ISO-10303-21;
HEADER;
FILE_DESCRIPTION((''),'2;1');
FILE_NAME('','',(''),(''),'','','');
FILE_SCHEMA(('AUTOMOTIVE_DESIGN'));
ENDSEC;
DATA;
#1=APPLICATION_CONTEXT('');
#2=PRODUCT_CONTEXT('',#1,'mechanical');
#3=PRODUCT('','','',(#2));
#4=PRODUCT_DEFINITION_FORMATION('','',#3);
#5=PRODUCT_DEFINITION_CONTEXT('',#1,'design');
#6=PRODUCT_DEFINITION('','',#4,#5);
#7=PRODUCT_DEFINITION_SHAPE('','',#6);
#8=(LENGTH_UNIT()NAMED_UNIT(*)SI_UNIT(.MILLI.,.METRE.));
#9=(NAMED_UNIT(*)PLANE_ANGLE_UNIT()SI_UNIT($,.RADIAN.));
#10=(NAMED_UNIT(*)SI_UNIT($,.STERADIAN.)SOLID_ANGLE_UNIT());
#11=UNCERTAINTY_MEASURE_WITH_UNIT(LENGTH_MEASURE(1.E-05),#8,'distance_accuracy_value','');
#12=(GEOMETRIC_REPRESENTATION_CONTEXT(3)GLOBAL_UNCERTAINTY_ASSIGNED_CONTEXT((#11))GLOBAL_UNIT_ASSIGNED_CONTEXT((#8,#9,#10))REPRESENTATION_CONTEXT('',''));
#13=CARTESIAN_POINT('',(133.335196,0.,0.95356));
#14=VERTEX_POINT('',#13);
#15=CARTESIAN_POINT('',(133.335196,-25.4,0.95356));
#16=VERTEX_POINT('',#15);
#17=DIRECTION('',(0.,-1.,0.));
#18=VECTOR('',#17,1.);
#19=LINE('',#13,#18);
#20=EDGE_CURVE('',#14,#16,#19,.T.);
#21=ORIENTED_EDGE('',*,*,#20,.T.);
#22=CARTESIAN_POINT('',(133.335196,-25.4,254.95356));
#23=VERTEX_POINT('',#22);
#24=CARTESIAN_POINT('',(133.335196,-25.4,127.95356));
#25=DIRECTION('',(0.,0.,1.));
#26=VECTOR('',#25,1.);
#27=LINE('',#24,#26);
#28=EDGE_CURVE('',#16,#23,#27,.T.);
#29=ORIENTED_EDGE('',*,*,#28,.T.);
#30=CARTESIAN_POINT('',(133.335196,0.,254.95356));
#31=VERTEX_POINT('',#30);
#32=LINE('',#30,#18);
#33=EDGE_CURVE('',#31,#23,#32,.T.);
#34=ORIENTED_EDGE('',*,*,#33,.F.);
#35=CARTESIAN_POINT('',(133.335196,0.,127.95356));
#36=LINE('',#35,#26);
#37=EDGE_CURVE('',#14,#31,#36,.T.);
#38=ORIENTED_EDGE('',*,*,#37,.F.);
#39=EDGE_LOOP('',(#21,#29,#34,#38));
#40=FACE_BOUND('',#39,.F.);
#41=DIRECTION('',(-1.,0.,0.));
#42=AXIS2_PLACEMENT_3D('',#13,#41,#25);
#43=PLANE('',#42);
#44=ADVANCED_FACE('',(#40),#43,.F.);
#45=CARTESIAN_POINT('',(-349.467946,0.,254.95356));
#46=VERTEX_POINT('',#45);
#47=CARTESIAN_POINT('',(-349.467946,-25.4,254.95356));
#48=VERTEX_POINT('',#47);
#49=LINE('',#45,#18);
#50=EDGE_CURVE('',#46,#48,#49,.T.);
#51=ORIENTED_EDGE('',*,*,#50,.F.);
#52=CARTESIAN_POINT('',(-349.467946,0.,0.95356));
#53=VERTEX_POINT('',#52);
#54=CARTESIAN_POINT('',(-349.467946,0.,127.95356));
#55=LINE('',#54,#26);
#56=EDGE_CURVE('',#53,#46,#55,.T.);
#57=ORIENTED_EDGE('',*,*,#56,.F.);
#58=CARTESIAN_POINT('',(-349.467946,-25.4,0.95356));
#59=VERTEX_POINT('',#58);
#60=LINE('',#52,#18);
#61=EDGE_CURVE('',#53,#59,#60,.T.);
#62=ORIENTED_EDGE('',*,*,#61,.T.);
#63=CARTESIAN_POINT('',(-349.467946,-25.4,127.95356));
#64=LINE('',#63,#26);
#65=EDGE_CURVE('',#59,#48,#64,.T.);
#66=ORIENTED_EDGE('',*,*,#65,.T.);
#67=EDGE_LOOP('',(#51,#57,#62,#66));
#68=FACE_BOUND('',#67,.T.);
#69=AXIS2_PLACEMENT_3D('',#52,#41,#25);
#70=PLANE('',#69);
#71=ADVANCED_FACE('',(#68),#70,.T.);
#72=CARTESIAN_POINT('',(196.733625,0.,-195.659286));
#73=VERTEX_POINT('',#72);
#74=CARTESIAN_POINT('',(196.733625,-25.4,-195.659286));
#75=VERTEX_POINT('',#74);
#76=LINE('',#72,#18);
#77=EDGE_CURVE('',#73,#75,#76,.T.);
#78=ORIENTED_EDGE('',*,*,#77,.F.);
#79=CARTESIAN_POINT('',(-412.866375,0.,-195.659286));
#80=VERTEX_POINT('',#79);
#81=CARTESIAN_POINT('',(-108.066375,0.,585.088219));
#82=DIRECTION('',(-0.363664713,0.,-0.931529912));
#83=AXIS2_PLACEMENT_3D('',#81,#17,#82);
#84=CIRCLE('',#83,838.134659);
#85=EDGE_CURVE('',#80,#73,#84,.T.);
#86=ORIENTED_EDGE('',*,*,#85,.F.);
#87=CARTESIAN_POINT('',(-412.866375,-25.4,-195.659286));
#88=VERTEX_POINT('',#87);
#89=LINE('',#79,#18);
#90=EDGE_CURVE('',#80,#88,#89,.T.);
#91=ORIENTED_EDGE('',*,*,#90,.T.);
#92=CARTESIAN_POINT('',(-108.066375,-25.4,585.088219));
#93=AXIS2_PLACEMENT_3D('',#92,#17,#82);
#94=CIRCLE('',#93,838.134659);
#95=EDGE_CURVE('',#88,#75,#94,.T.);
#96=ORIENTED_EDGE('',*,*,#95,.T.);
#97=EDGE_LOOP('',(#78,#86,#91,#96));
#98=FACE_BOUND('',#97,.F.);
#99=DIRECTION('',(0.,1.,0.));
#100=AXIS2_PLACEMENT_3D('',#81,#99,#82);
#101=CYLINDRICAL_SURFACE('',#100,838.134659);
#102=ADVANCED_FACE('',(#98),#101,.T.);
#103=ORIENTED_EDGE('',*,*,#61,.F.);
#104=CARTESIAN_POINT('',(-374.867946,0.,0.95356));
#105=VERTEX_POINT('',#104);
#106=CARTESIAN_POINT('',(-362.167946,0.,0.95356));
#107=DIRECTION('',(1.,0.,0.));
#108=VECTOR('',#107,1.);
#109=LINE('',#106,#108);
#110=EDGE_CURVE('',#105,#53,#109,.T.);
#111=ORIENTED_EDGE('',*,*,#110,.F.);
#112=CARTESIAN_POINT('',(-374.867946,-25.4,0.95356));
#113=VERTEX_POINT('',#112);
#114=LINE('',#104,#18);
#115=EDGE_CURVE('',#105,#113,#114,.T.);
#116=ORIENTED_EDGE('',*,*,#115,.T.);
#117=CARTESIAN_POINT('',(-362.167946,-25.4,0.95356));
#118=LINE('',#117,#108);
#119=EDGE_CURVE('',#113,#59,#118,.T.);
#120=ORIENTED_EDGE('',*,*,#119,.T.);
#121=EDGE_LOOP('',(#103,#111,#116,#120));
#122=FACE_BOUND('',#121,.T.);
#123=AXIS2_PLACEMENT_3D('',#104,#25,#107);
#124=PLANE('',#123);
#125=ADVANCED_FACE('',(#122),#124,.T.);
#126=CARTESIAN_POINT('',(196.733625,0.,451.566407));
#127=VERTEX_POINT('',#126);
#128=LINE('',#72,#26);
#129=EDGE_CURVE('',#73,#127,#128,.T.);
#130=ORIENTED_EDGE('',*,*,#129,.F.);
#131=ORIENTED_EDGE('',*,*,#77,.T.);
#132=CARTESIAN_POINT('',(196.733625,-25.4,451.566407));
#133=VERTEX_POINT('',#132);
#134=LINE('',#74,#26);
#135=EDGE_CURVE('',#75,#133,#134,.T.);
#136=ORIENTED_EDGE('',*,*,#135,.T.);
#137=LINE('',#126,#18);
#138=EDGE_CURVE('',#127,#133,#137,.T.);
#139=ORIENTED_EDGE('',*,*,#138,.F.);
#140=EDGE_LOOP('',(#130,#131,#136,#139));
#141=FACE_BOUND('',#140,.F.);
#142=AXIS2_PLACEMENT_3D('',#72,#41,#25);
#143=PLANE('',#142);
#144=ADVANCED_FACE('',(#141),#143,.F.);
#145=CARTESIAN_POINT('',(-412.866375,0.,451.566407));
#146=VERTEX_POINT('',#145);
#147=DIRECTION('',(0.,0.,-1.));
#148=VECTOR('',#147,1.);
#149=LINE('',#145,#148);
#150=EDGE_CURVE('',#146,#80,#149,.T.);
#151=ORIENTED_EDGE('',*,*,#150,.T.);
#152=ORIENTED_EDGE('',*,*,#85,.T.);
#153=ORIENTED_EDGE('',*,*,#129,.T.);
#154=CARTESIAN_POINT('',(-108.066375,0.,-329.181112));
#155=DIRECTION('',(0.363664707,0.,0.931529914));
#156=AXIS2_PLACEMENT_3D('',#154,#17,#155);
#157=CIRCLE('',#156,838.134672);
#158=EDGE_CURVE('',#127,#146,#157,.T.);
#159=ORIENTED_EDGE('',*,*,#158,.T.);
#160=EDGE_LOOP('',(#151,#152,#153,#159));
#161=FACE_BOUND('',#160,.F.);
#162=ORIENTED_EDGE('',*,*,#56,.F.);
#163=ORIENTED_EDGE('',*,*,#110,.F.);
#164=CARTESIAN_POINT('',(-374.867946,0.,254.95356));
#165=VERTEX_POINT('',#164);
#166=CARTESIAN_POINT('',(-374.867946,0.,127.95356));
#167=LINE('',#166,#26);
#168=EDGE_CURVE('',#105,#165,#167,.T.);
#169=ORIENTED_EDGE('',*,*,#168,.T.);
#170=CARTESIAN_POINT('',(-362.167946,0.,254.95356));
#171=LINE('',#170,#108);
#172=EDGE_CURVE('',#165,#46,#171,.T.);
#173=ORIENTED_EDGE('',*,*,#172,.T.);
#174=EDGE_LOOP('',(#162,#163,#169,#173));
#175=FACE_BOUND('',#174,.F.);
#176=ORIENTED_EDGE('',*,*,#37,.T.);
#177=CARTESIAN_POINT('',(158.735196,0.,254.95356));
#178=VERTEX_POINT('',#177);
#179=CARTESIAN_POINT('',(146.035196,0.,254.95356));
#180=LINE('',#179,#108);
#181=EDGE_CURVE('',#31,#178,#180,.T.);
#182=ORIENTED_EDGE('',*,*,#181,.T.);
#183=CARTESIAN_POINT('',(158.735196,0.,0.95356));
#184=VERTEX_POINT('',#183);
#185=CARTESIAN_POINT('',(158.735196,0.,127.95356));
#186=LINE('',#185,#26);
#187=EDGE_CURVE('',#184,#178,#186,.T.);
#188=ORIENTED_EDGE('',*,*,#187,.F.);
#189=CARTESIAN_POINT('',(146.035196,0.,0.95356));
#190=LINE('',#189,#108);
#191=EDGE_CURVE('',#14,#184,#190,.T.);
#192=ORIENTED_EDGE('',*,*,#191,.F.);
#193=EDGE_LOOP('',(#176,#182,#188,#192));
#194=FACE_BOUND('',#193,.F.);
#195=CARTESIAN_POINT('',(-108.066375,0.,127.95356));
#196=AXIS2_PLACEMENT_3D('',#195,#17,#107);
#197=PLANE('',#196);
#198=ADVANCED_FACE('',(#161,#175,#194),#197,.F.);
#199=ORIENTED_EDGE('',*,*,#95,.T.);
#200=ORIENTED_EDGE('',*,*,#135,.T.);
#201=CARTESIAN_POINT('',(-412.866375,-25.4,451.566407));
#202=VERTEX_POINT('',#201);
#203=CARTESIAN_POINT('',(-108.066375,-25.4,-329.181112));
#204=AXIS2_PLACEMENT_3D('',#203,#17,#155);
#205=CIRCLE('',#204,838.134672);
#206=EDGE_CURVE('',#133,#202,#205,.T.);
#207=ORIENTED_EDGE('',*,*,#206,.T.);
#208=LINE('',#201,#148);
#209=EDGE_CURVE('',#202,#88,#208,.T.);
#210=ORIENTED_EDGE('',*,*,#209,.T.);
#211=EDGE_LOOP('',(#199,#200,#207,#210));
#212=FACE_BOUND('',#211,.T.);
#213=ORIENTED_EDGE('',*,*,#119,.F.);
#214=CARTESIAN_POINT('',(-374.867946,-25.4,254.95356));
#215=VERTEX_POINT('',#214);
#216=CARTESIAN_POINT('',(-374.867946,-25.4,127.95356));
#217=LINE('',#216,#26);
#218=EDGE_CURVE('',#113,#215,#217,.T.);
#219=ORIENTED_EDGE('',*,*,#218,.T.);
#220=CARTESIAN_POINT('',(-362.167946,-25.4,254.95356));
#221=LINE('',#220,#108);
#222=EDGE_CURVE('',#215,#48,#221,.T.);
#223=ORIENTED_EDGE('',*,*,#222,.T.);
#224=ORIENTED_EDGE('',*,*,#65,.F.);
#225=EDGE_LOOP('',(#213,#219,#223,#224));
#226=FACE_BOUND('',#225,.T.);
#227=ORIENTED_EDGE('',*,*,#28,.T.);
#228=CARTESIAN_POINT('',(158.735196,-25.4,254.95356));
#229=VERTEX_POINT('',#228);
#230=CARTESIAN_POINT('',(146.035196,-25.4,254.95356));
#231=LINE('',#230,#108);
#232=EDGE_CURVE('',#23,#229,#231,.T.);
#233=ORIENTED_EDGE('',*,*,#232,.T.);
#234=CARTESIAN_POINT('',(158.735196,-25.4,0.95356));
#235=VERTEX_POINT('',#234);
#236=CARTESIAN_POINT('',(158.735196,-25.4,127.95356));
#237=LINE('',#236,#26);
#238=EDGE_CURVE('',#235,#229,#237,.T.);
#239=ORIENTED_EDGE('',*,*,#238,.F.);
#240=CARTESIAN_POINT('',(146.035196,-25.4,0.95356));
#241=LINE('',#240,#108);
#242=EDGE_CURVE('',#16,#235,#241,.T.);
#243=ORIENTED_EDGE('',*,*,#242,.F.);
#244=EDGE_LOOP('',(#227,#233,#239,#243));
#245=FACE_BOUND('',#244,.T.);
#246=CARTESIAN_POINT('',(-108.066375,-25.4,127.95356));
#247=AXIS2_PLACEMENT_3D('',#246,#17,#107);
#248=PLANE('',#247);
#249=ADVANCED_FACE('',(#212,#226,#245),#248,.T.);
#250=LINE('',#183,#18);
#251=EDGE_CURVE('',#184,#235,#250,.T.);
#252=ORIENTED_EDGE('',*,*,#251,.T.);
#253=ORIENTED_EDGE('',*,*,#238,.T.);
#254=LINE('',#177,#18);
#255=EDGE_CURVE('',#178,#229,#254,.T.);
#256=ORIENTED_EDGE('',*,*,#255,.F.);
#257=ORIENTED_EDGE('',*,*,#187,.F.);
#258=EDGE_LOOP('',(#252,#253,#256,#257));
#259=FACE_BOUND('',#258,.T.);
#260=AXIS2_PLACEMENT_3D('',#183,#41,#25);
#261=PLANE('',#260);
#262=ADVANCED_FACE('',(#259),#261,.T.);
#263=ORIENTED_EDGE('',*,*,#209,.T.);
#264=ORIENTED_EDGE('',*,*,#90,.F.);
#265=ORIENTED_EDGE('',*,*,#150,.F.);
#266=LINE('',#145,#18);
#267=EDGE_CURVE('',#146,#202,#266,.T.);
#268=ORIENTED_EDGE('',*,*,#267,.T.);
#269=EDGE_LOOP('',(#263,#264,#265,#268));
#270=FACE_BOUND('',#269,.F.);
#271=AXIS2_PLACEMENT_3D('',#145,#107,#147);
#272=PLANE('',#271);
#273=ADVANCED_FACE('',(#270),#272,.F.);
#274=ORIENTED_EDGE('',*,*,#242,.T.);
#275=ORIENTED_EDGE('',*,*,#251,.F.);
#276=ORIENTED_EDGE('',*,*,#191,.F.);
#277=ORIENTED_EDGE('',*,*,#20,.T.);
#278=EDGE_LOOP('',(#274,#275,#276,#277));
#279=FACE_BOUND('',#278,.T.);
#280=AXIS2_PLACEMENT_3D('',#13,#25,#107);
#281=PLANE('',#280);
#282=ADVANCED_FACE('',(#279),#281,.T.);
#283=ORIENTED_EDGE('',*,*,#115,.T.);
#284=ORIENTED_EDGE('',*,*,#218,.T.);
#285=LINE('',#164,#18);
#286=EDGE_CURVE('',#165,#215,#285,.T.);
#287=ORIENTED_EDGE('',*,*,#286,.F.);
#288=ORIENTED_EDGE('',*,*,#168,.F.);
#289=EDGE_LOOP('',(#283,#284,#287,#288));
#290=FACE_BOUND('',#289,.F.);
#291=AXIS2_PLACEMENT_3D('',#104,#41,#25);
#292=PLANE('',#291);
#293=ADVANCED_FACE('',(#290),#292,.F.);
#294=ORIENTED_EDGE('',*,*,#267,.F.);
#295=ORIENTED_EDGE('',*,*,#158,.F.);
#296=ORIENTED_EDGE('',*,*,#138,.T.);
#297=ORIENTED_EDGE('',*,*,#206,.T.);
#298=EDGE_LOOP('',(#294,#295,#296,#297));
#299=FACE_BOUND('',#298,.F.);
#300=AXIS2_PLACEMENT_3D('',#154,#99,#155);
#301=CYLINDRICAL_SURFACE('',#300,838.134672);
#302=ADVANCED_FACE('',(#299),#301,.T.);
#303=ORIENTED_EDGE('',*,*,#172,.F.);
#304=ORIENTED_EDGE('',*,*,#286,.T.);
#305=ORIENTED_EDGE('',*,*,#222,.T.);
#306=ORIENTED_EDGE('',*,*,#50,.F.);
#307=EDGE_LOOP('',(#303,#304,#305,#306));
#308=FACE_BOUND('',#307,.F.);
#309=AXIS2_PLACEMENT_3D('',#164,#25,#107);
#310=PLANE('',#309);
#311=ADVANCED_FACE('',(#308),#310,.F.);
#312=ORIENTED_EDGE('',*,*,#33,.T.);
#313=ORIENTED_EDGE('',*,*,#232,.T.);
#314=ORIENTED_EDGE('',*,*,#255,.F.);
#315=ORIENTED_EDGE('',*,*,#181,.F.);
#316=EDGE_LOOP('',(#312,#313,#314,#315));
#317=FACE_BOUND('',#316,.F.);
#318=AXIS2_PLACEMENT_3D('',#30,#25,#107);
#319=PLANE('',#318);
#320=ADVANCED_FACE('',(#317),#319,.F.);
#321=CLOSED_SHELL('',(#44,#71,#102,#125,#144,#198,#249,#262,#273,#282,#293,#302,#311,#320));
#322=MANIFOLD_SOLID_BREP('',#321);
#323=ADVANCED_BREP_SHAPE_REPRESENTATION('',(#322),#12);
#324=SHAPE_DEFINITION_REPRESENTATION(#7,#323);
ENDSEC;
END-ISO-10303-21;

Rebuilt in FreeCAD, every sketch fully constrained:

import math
import FreeCAD as App
import Part
import Sketcher
from FreeCAD import Vector
Q = App.Units.Quantity


def add_polygon(sketch, points):
    """Adds a closed chain of lines whose ends are joined by coincident constraints."""
    first, n = sketch.GeometryCount, len(points)
    for a, b in zip(points, points[1:] + points[:1]):
        sketch.addGeometry(Part.LineSegment(App.Vector(*a, 0), App.Vector(*b, 0)), False)
    for i in range(n):
        sketch.addConstraint(Sketcher.Constraint("Coincident", first + i, 2, first + (i + 1) % n, 1))

doc = App.newDocument("Part")
body = doc.addObject("PartDesign::Body", "Body")

# Sketch on XZ plane
sketch1 = body.newObject("Sketcher::SketchObject", "Sketch")
sketch1.AttachmentSupport = (doc.getObject("XZ_Plane"), [""])
sketch1.MapMode = "FlatFace"
sketch1.addGeometry(Part.LineSegment(Vector(-413, 452, 0), Vector(-413, -196, 0)), False)  # 0
sketch1.addGeometry(Part.ArcOfCircle(Part.Circle(Vector(-108, 585, 0), Vector(0, 0, 1), 838), math.radians(-111), math.radians(-69)), False)  # 1
sketch1.addGeometry(Part.LineSegment(Vector(197, -196, 0), Vector(197, 452, 0)), False)  # 2
sketch1.addGeometry(Part.ArcOfCircle(Part.Circle(Vector(-108, -329, 0), Vector(0, 0, 1), 838), math.radians(69), math.radians(111)), False)  # 3
add_polygon(sketch1, [(-349, 1), (-375, 1), (-375, 255), (-349, 255)])  # lines 4-7
add_polygon(sketch1, [(159, 1), (133, 1), (133, 255), (159, 255)])  # lines 8-11
sketch1.addConstraint(Sketcher.Constraint("Coincident", 0, 2, 1, 1))
sketch1.addConstraint(Sketcher.Constraint("Coincident", 1, 2, 2, 1))
sketch1.addConstraint(Sketcher.Constraint("Coincident", 2, 2, 3, 1))
sketch1.addConstraint(Sketcher.Constraint("Coincident", 3, 2, 0, 1))
sketch1.addConstraint(Sketcher.Constraint("Vertical", 0))
sketch1.addConstraint(Sketcher.Constraint("Vertical", 2))
sketch1.addConstraint(Sketcher.Constraint("Horizontal", 4))
sketch1.addConstraint(Sketcher.Constraint("Vertical", 5))
sketch1.addConstraint(Sketcher.Constraint("Horizontal", 6))
sketch1.addConstraint(Sketcher.Constraint("Vertical", 7))
sketch1.addConstraint(Sketcher.Constraint("Horizontal", 8))
sketch1.addConstraint(Sketcher.Constraint("Vertical", 9))
sketch1.addConstraint(Sketcher.Constraint("Horizontal", 10))
sketch1.addConstraint(Sketcher.Constraint("Vertical", 11))
sketch1.addConstraint(Sketcher.Constraint("Horizontal", 0, 2, 1, 2))
sketch1.addConstraint(Sketcher.Constraint("Horizontal", 2, 2, 3, 2))
sketch1.addConstraint(Sketcher.Constraint("Horizontal", 7, 2, 8, 2))
sketch1.addConstraint(Sketcher.Constraint("Horizontal", 6, 2, 9, 2))
sketch1.addConstraint(Sketcher.Constraint("Equal", 6, 8))
sketch1.addConstraint(Sketcher.Constraint("DistanceX", 4, 2, 4, 1, Q("1 in")))
sketch1.addConstraint(Sketcher.Constraint("DistanceY", 5, 1, 5, 2, Q("10 in")))
sketch1.addConstraint(Sketcher.Constraint("DistanceX", 0, 2, 3, 3, Q("12 in")))
sketch1.addConstraint(Sketcher.Constraint("Radius", 1, Q("838.134659 mm")))
sketch1.addConstraint(Sketcher.Constraint("Radius", 3, Q("838.134672 mm")))
sketch1.addConstraint(Sketcher.Constraint("DistanceY", 0, 2, 0, 1, Q("647.225693 mm")))
sketch1.addConstraint(Sketcher.Constraint("DistanceY", -1, 1, 1, 3, Q("585.088219 mm")))
sketch1.addConstraint(Sketcher.Constraint("DistanceY", -1, 1, 4, 2, Q("0.95356 mm")))
sketch1.addConstraint(Sketcher.Constraint("DistanceX", 0, 2, 4, 2, Q("37.998429 mm")))
sketch1.addConstraint(Sketcher.Constraint("DistanceX", 3, 3, 8, 2, Q("241.401571 mm")))
sketch1.addConstraint(Sketcher.Constraint("DistanceX", 1, 3, -1, 1, Q("108.066375 mm")))
pad1 = body.newObject("PartDesign::Pad", "Pad")
pad1.Profile = sketch1
pad1.Length = Q("1 in")

doc.recompute()
